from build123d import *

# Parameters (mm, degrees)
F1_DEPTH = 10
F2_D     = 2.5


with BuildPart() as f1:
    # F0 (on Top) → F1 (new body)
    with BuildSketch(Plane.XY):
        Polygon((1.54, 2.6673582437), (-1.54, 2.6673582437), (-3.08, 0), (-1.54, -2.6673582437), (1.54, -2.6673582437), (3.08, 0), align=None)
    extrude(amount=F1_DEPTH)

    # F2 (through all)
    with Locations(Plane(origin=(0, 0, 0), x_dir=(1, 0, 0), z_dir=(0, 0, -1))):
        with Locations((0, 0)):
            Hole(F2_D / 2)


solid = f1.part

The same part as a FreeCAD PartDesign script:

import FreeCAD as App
import Part
import Sketcher

V = App.Vector
Q = App.Units.Quantity


def add_polygon(sketch, points):
    """Adds a closed chain of lines whose ends are joined by coincident constraints."""
    first, n = sketch.GeometryCount, len(points)
    for a, b in zip(points, points[1:] + points[:1]):
        sketch.addGeometry(Part.LineSegment(App.Vector(*a, 0), App.Vector(*b, 0)), False)
    for i in range(n):
        sketch.addConstraint(Sketcher.Constraint("Coincident", first + i, 2, first + (i + 1) % n, 1))

doc = App.newDocument("Part")
body = doc.addObject("PartDesign::Body", "Body")

sketch1 = doc.addObject("Sketcher::SketchObject", "Sketch")
body.addObject(sketch1)
sketch1.AttachmentSupport = (doc.XY_Plane, [""])
sketch1.MapMode = "FlatFace"
add_polygon(sketch1, [(1.5, 2.7), (-1.5, 2.7), (-3.1, 0), (-1.5, -2.7), (1.5, -2.7), (3.1, 0)])
sketch1.addConstraint(Sketcher.Constraint("Horizontal", 0))
sketch1.addConstraint(Sketcher.Constraint("Horizontal", 3))
sketch1.addConstraint(Sketcher.Constraint("Symmetric", 0, 2, 3, 2, -1, 1))
sketch1.addConstraint(Sketcher.Constraint("Symmetric", 1, 2, 4, 2, -1, 1))
sketch1.addConstraint(Sketcher.Constraint("PointOnObject", 1, 2, -1))
sketch1.addConstraint(Sketcher.Constraint("Parallel", 2, 5))
sketch1.addConstraint(Sketcher.Constraint("Vertical", 0, 2, 2, 2))
sketch1.addConstraint(Sketcher.Constraint("Angle", 1, Q("-120 deg")))
sketch1.addConstraint(Sketcher.Constraint("DistanceX", 0, 2, 0, 1, 3.08))
sketch1.addConstraint(Sketcher.Constraint("Distance", 1, 3.08))
pad1 = doc.addObject("PartDesign::Pad", "Pad")
body.addObject(pad1)
pad1.Profile = sketch1
pad1.Length = 10

sketch2 = doc.addObject("Sketcher::SketchObject", "Sketch001")
body.addObject(sketch2)
sketch2.AttachmentSupport = (doc.XY_Plane, [""])
sketch2.MapMode = "FlatFace"
sketch2.addGeometry(Part.Circle(V(0, 0, 0), V(0, 0, 1), 1.2), False)
sketch2.addConstraint(Sketcher.Constraint("Coincident", 0, 3, -1, 1))
sketch2.addConstraint(Sketcher.Constraint("Diameter", 0, 2.5))
doc.recompute()
hole = doc.addObject("PartDesign::Hole", "Hole")
body.addObject(hole)
hole.Profile = sketch2
hole.ThreadType = "None"
hole.Diameter = 2.5
hole.DepthType = "ThroughAll"
hole.Reversed = True

doc.recompute()
